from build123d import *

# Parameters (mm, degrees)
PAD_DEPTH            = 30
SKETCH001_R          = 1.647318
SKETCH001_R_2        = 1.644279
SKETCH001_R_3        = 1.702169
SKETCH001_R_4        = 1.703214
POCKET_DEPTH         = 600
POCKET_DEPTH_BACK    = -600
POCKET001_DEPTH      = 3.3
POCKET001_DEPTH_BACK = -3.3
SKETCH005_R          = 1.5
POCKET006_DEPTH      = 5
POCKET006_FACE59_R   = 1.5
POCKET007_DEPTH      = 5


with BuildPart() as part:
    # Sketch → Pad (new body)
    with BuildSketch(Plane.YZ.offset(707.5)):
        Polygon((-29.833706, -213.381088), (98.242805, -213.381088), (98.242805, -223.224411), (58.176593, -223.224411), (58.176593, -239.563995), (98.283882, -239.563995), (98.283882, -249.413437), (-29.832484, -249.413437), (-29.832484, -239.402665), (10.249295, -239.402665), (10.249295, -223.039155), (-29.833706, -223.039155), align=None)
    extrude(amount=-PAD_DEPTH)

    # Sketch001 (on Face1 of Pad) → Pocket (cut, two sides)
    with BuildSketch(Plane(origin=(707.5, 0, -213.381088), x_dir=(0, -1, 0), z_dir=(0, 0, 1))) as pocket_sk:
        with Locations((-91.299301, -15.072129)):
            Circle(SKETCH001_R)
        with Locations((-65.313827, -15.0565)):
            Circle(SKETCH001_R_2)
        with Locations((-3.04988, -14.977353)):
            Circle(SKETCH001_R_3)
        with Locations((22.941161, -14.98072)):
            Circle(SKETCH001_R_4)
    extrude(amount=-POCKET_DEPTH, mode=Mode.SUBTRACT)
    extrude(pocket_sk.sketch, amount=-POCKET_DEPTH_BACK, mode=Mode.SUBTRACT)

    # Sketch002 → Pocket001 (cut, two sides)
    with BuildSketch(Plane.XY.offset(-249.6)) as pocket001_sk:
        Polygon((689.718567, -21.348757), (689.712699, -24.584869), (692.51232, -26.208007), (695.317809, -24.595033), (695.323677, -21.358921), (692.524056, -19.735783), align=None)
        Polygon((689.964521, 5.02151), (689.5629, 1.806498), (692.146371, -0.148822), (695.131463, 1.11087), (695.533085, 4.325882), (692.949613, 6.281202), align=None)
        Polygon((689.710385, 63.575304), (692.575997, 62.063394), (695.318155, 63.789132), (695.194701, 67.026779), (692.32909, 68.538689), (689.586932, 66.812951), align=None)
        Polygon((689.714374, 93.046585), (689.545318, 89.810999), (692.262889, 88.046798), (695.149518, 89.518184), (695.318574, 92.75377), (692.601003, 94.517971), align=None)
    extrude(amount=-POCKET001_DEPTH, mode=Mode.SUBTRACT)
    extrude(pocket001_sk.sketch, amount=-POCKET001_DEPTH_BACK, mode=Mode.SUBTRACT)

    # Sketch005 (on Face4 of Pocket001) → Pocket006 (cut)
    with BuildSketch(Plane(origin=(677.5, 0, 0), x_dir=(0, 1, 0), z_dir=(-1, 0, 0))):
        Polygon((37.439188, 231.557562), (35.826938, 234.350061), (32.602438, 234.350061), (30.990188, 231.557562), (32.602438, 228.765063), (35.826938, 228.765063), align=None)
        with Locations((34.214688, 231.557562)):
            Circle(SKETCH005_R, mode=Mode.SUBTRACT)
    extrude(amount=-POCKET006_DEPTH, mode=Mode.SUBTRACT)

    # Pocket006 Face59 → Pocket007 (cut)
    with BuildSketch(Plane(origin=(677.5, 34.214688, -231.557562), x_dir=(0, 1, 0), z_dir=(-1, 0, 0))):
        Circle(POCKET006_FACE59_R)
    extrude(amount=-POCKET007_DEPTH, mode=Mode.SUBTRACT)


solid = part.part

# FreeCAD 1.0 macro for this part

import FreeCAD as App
import Part
import Sketcher
from FreeCAD import Vector
Q = App.Units.Quantity

doc = App.newDocument("Part")
body = doc.addObject("PartDesign::Body", "Body")

sketch1 = doc.addObject("Sketcher::SketchObject", "Sketch")
body.addObject(sketch1)
sketch1.AttachmentSupport = (doc.YZ_Plane, [""])
sketch1.MapMode = "FlatFace"
sketch1.AttachmentOffset = App.Placement(Vector(0, 0, 707.5), App.Rotation())
sketch1.addGeometry([
    Part.LineSegment(Vector(98.242805, -213.381088, 0), Vector(-29.833706, -213.381088, 0)),
    Part.LineSegment(Vector(-29.833706, -213.381088, 0), Vector(-29.833706, -223.039155, 0)),
    Part.LineSegment(Vector(-29.833706, -223.039155, 0), Vector(10.249295, -223.039155, 0)),
    Part.LineSegment(Vector(10.249295, -223.039155, 0), Vector(10.249295, -239.402665, 0)),
    Part.LineSegment(Vector(10.249295, -239.402665, 0), Vector(-29.832484, -239.402665, 0)),
    Part.LineSegment(Vector(-29.832484, -239.402665, 0), Vector(-29.832484, -249.413437, 0)),
    Part.LineSegment(Vector(-29.832484, -249.413437, 0), Vector(98.283882, -249.413437, 0)),
    Part.LineSegment(Vector(98.283882, -249.413437, 0), Vector(98.283882, -239.563995, 0)),
    Part.LineSegment(Vector(98.283882, -239.563995, 0), Vector(58.176593, -239.563995, 0)),
    Part.LineSegment(Vector(58.176593, -239.563995, 0), Vector(58.176593, -223.224411, 0)),
    Part.LineSegment(Vector(58.176593, -223.224411, 0), Vector(98.242805, -223.224411, 0)),
    Part.LineSegment(Vector(98.242805, -223.224411, 0), Vector(98.242805, -213.381088, 0)),
], False)
sketch1.addConstraint([
    Sketcher.Constraint("Coincident", 0, 2, 1, 1),
    Sketcher.Constraint("Coincident", 1, 2, 2, 1),
    Sketcher.Constraint("Coincident", 2, 2, 3, 1),
    Sketcher.Constraint("Coincident", 3, 2, 4, 1),
    Sketcher.Constraint("Coincident", 4, 2, 5, 1),
    Sketcher.Constraint("Coincident", 5, 2, 6, 1),
    Sketcher.Constraint("Coincident", 6, 2, 7, 1),
    Sketcher.Constraint("Coincident", 7, 2, 8, 1),
    Sketcher.Constraint("Coincident", 8, 2, 9, 1),
    Sketcher.Constraint("Coincident", 9, 2, 10, 1),
    Sketcher.Constraint("Coincident", 10, 2, 11, 1),
    Sketcher.Constraint("Coincident", 11, 2, 0, 1),
    Sketcher.Constraint("Horizontal", 0),
    Sketcher.Constraint("Vertical", 1),
    Sketcher.Constraint("Horizontal", 2),
    Sketcher.Constraint("Vertical", 3),
    Sketcher.Constraint("Horizontal", 4),
    Sketcher.Constraint("Vertical", 5),
    Sketcher.Constraint("Horizontal", 6),
    Sketcher.Constraint("Vertical", 7),
    Sketcher.Constraint("Horizontal", 8),
    Sketcher.Constraint("Vertical", 9),
    Sketcher.Constraint("Horizontal", 10),
    Sketcher.Constraint("Vertical", 11),
    Sketcher.Constraint("DistanceX", 2, 1, 2, 2, Q("40.083001 mm")),
    Sketcher.Constraint("DistanceX", 0, 2, 0, 1, Q("128.076511 mm")),
    Sketcher.Constraint("DistanceX", 4, 2, 4, 1, Q("40.081779 mm")),
    Sketcher.Constraint("DistanceX", 8, 2, 8, 1, Q("40.107289 mm")),
    Sketcher.Constraint("DistanceY", 3, 2, 3, 1, Q("16.36351 mm")),
    Sketcher.Constraint("DistanceY", 5, 2, 5, 1, Q("10.010772 mm")),
    Sketcher.Constraint("DistanceY", 7, 1, 7, 2, Q("9.849442 mm")),
    Sketcher.Constraint("DistanceX", 6, 1, 6, 2, Q("128.116366 mm")),
    Sketcher.Constraint("DistanceY", 1, 2, 1, 1, Q("9.658067 mm")),
    Sketcher.Constraint("DistanceY", 9, 1, 9, 2, Q("16.339584 mm")),
    Sketcher.Constraint("DistanceY", 0, 2, -1, 1, Q("213.381088 mm")),
    Sketcher.Constraint("DistanceX", 0, 2, -1, 1, Q("29.833706 mm")),
])
pad1 = doc.addObject("PartDesign::Pad", "Pad")
body.addObject(pad1)
pad1.Profile = sketch1
pad1.Length = 30
pad1.Reversed = True

sketch2 = doc.addObject("Sketcher::SketchObject", "Sketch001")
body.addObject(sketch2)
sketch2.AttachmentSupport = (doc.XY_Plane, [""])
sketch2.MapMode = "FlatFace"
sketch2.AttachmentOffset = App.Placement(Vector(0, 0, -213.381088), App.Rotation())
sketch2.addGeometry([
    Part.Circle(Vector(692.427871, 91.299301, 0), Vector(0, 0, 1), 1.647318),
    Part.Circle(Vector(692.4435, 65.313827, 0), Vector(0, 0, 1), 1.644279),
    Part.Circle(Vector(692.522647, 3.04988, 0), Vector(0, 0, 1), 1.702169),
    Part.Circle(Vector(692.51928, -22.941161, 0), Vector(0, 0, 1), 1.703214),
], False)
sketch2.addConstraint([
    Sketcher.Constraint("Diameter", 1, Q("3.288558 mm")),
    Sketcher.Constraint("Diameter", 2, Q("3.404338 mm")),
    Sketcher.Constraint("Diameter", 3, Q("3.406428 mm")),
    Sketcher.Constraint("Diameter", 0, Q("3.294636 mm")),
    Sketcher.Constraint("DistanceY", -1, 1, 0, 3, Q("91.299301 mm")),
    Sketcher.Constraint("DistanceX", -1, 1, 1, 3, Q("692.4435 mm")),
    Sketcher.Constraint("DistanceX", -1, 1, 0, 3, Q("692.427871 mm")),
    Sketcher.Constraint("DistanceY", -1, 1, 2, 3, Q("3.04988 mm")),
    Sketcher.Constraint("DistanceX", -1, 1, 3, 3, Q("692.51928 mm")),
    Sketcher.Constraint("DistanceY", 3, 3, -1, 1, Q("22.941161 mm")),
    Sketcher.Constraint("DistanceY", -1, 1, 1, 3, Q("65.313827 mm")),
    Sketcher.Constraint("DistanceX", -1, 1, 2, 3, Q("692.522647 mm")),
])
pocket1 = doc.addObject("PartDesign::Pocket", "Pocket")
body.addObject(pocket1)
pocket1.Profile = sketch2
pocket1.Type = "ThroughAll"
pocket1.Midplane = True

sketch3 = doc.addObject("Sketcher::SketchObject", "Sketch002")
body.addObject(sketch3)
sketch3.AttachmentSupport = (doc.XY_Plane, [""])
sketch3.MapMode = "FlatFace"
sketch3.AttachmentOffset = App.Placement(Vector(0, 0, -249.6), App.Rotation())
sketch3.addGeometry([
    Part.LineSegment(Vector(689.718567, -21.348757, 0), Vector(689.712699, -24.584869, 0)),
    Part.LineSegment(Vector(689.712699, -24.584869, 0), Vector(692.51232, -26.208007, 0)),
    Part.LineSegment(Vector(692.51232, -26.208007, 0), Vector(695.317809, -24.595033, 0)),
    Part.LineSegment(Vector(695.317809, -24.595033, 0), Vector(695.323677, -21.358921, 0)),
    Part.LineSegment(Vector(695.323677, -21.358921, 0), Vector(692.524056, -19.735783, 0)),
    Part.LineSegment(Vector(692.524056, -19.735783, 0), Vector(689.718567, -21.348757, 0)),
    Part.LineSegment(Vector(689.964521, 5.02151, 0), Vector(689.5629, 1.806498, 0)),
    Part.LineSegment(Vector(689.5629, 1.806498, 0), Vector(692.146371, -0.148822, 0)),
    Part.LineSegment(Vector(692.146371, -0.148822, 0), Vector(695.131463, 1.11087, 0)),
    Part.LineSegment(Vector(695.131463, 1.11087, 0), Vector(695.533085, 4.325882, 0)),
    Part.LineSegment(Vector(695.533085, 4.325882, 0), Vector(692.949613, 6.281202, 0)),
    Part.LineSegment(Vector(692.949613, 6.281202, 0), Vector(689.964521, 5.02151, 0)),
    Part.LineSegment(Vector(689.710385, 63.575304, 0), Vector(692.575997, 62.063394, 0)),
    Part.LineSegment(Vector(692.575997, 62.063394, 0), Vector(695.318155, 63.789132, 0)),
    Part.LineSegment(Vector(695.318155, 63.789132, 0), Vector(695.194701, 67.026779, 0)),
    Part.LineSegment(Vector(695.194701, 67.026779, 0), Vector(692.32909, 68.538689, 0)),
    Part.LineSegment(Vector(692.32909, 68.538689, 0), Vector(689.586932, 66.812951, 0)),
    Part.LineSegment(Vector(689.586932, 66.812951, 0), Vector(689.710385, 63.575304, 0)),
    Part.LineSegment(Vector(689.714374, 93.046585, 0), Vector(689.545318, 89.810999, 0)),
    Part.LineSegment(Vector(689.545318, 89.810999, 0), Vector(692.262889, 88.046798, 0)),
    Part.LineSegment(Vector(692.262889, 88.046798, 0), Vector(695.149518, 89.518184, 0)),
    Part.LineSegment(Vector(695.149518, 89.518184, 0), Vector(695.318574, 92.75377, 0)),
    Part.LineSegment(Vector(695.318574, 92.75377, 0), Vector(692.601003, 94.517971, 0)),
    Part.LineSegment(Vector(692.601003, 94.517971, 0), Vector(689.714374, 93.046585, 0)),
], False)
sketch3.addConstraint([
    Sketcher.Constraint("Coincident", 0, 2, 1, 1),
    Sketcher.Constraint("Coincident", 1, 2, 2, 1),
    Sketcher.Constraint("Coincident", 2, 2, 3, 1),
    Sketcher.Constraint("Coincident", 3, 2, 4, 1),
    Sketcher.Constraint("Coincident", 4, 2, 5, 1),
    Sketcher.Constraint("Coincident", 5, 2, 0, 1),
    Sketcher.Constraint("Coincident", 6, 2, 7, 1),
    Sketcher.Constraint("Coincident", 7, 2, 8, 1),
    Sketcher.Constraint("Coincident", 8, 2, 9, 1),
    Sketcher.Constraint("Coincident", 9, 2, 10, 1),
    Sketcher.Constraint("Coincident", 10, 2, 11, 1),
    Sketcher.Constraint("Coincident", 11, 2, 6, 1),
    Sketcher.Constraint("Coincident", 12, 2, 13, 1),
    Sketcher.Constraint("Coincident", 13, 2, 14, 1),
    Sketcher.Constraint("Coincident", 14, 2, 15, 1),
    Sketcher.Constraint("Coincident", 15, 2, 16, 1),
    Sketcher.Constraint("Coincident", 16, 2, 17, 1),
    Sketcher.Constraint("Coincident", 17, 2, 12, 1),
    Sketcher.Constraint("Coincident", 18, 2, 19, 1),
    Sketcher.Constraint("Coincident", 19, 2, 20, 1),
    Sketcher.Constraint("Coincident", 20, 2, 21, 1),
    Sketcher.Constraint("Coincident", 21, 2, 22, 1),
    Sketcher.Constraint("Coincident", 22, 2, 23, 1),
    Sketcher.Constraint("Coincident", 23, 2, 18, 1),
    Sketcher.Constraint("Parallel", 0, 3),
    Sketcher.Constraint("Parallel", 1, 4),
    Sketcher.Constraint("Parallel", 2, 5),
    Sketcher.Constraint("Parallel", 6, 9),
    Sketcher.Constraint("Parallel", 7, 10),
    Sketcher.Constraint("Parallel", 8, 11),
    Sketcher.Constraint("Parallel", 12, 15),
    Sketcher.Constraint("Parallel", 13, 16),
    Sketcher.Constraint("Parallel", 14, 17),
    Sketcher.Constraint("Parallel", 18, 21),
    Sketcher.Constraint("Parallel", 19, 22),
    Sketcher.Constraint("Parallel", 20, 23),
    Sketcher.Constraint("Equal", 0, 1),
    Sketcher.Constraint("Equal", 1, 2),
    Sketcher.Constraint("Equal", 2, 3),
    Sketcher.Constraint("Equal", 6, 7),
    Sketcher.Constraint("Equal", 7, 8),
    Sketcher.Constraint("Equal", 8, 9),
    Sketcher.Constraint("Equal", 11, 12),
    Sketcher.Constraint("Equal", 12, 13),
    Sketcher.Constraint("Equal", 13, 14),
    Sketcher.Constraint("Equal", 14, 15),
    Sketcher.Constraint("Equal", 17, 18),
    Sketcher.Constraint("Equal", 18, 19),
    Sketcher.Constraint("Equal", 19, 20),
    Sketcher.Constraint("Equal", 20, 21),
    Sketcher.Constraint("Distance", 6, Q("3.24 mm")),
    Sketcher.Constraint("DistanceY", -1, 1, 18, 2, Q("89.810999 mm")),
    Sketcher.Constraint("DistanceX", -1, 1, 0, 2, Q("689.712699 mm")),
    Sketcher.Constraint("DistanceX", -1, 1, 6, 2, Q("689.5629 mm")),
    Sketcher.Constraint("DistanceX", -1, 1, 14, 2, Q("695.194701 mm")),
    Sketcher.Constraint("DistanceY", 3, 2, 7, 2, Q("21.210099 mm")),
    Sketcher.Constraint("DistanceY", 19, 2, 18, 2, Q("1.764201 mm")),
    Sketcher.Constraint("DistanceX", 19, 2, 15, 2, Q("0.066201 mm")),
    Sketcher.Constraint("DistanceX", 18, 2, 20, 2, Q("5.6042 mm")),
    Sketcher.Constraint("DistanceY", 20, 2, 23, 2, Q("3.528401 mm")),
    Sketcher.Constraint("DistanceY", 0, 2, -1, 1, Q("24.584869 mm")),
    Sketcher.Constraint("DistanceX", -1, 1, 1, 2, Q("692.51232 mm")),
    Sketcher.Constraint("DistanceX", -1, 1, 2, 2, Q("695.317809 mm")),
    Sketcher.Constraint("DistanceY", 3, 2, -1, 1, Q("21.358921 mm")),
    Sketcher.Constraint("DistanceX", -1, 1, 7, 2, Q("692.146371 mm")),
    Sketcher.Constraint("DistanceY", -1, 1, 8, 2, Q("1.11087 mm")),
    Sketcher.Constraint("DistanceX", -1, 1, 11, 2, Q("689.964521 mm")),
    Sketcher.Constraint("DistanceY", -1, 1, 14, 2, Q("67.026779 mm")),
    Sketcher.Constraint("DistanceX", -1, 1, 15, 2, Q("692.32909 mm")),
    Sketcher.Constraint("DistanceX", -1, 1, 16, 2, Q("689.586932 mm")),
    Sketcher.Constraint("DistanceX", 4, 2, 9, 2, Q("3.009029 mm")),
    Sketcher.Constraint("DistanceY", 10, 2, 13, 2, Q("57.50793 mm")),
])
pocket2 = doc.addObject("PartDesign::Pocket", "Pocket001")
body.addObject(pocket2)
pocket2.Profile = sketch3
pocket2.Type = "TwoLengths"
pocket2.Length = 3.3
pocket2.Length2 = 3.3

sketch4 = doc.addObject("Sketcher::SketchObject", "Sketch003")
body.addObject(sketch4)
sketch4.AttachmentSupport = (doc.YZ_Plane, [""])
sketch4.MapMode = "FlatFace"
sketch4.AttachmentOffset = App.Placement(Vector(0, 0, 677.5), App.Rotation())
sketch4.addGeometry([
    Part.LineSegment(Vector(37.439188, -231.557562, 0), Vector(35.826938, -234.350061, 0)),
    Part.LineSegment(Vector(35.826938, -234.350061, 0), Vector(32.602438, -234.350061, 0)),
    Part.LineSegment(Vector(32.602438, -234.350061, 0), Vector(30.990188, -231.557562, 0)),
    Part.LineSegment(Vector(30.990188, -231.557562, 0), Vector(32.602438, -228.765063, 0)),
    Part.LineSegment(Vector(32.602438, -228.765063, 0), Vector(35.826938, -228.765063, 0)),
    Part.LineSegment(Vector(35.826938, -228.765063, 0), Vector(37.439188, -231.557562, 0)),
    Part.Circle(Vector(34.214688, -231.557562, 0), Vector(0, 0, 1), 1.5),
], False)
sketch4.addConstraint([
    Sketcher.Constraint("Coincident", 0, 2, 1, 1),
    Sketcher.Constraint("Coincident", 1, 2, 2, 1),
    Sketcher.Constraint("Coincident", 2, 2, 3, 1),
    Sketcher.Constraint("Coincident", 3, 2, 4, 1),
    Sketcher.Constraint("Coincident", 4, 2, 5, 1),
    Sketcher.Constraint("Coincident", 5, 2, 0, 1),
    Sketcher.Constraint("Horizontal", 1),
    Sketcher.Constraint("Horizontal", 4),
    Sketcher.Constraint("Parallel", 0, 3),
    Sketcher.Constraint("Parallel", 2, 5),
    Sketcher.Constraint("Horizontal", 6, 3, 2, 2),
    Sketcher.Constraint("Horizontal", 2, 2, 5, 2),
    Sketcher.Constraint("Vertical", 1, 2, 3, 2),
    Sketcher.Constraint("Vertical", 0, 2, 4, 2),
    Sketcher.Constraint("Diameter", 6, Q("3 mm")),
    Sketcher.Constraint("Angle", 0, Q("-119.999999 deg")),
    Sketcher.Constraint("DistanceX", 1, 2, 1, 1, Q("3.2245 mm")),
    Sketcher.Constraint("DistanceY", 1, 2, 3, 2, Q("5.584998 mm")),
    Sketcher.Constraint("DistanceX", 2, 2, 6, 3, Q("3.2245 mm")),
    Sketcher.Constraint("DistanceX", -1, 1, 6, 3, Q("34.214688 mm")),
    Sketcher.Constraint("DistanceY", 6, 3, -1, 1, Q("231.557562 mm")),
])
pocket3 = doc.addObject("PartDesign::Pocket", "Pocket002")
body.addObject(pocket3)
pocket3.Profile = sketch4
pocket3.Length = 5
pocket3.Reversed = True

sketch5 = doc.addObject("Sketcher::SketchObject", "Sketch004")
body.addObject(sketch5)
sketch5.AttachmentSupport = (doc.YZ_Plane, [""])
sketch5.MapMode = "FlatFace"
sketch5.AttachmentOffset = App.Placement(Vector(0, 0, 677.5), App.Rotation())
sketch5.addGeometry(Part.Circle(Vector(34.214688, -231.557562, 0), Vector(0, 0, 1), 1.5), False)
sketch5.addConstraint([
    Sketcher.Constraint("Diameter", 0, Q("3 mm")),
    Sketcher.Constraint("DistanceX", -1, 1, 0, 3, Q("34.214688 mm")),
    Sketcher.Constraint("DistanceY", 0, 3, -1, 1, Q("231.557562 mm")),
])
pocket4 = doc.addObject("PartDesign::Pocket", "Pocket003")
body.addObject(pocket4)
pocket4.Profile = sketch5
pocket4.Length = 5
pocket4.Reversed = True

doc.recompute()
